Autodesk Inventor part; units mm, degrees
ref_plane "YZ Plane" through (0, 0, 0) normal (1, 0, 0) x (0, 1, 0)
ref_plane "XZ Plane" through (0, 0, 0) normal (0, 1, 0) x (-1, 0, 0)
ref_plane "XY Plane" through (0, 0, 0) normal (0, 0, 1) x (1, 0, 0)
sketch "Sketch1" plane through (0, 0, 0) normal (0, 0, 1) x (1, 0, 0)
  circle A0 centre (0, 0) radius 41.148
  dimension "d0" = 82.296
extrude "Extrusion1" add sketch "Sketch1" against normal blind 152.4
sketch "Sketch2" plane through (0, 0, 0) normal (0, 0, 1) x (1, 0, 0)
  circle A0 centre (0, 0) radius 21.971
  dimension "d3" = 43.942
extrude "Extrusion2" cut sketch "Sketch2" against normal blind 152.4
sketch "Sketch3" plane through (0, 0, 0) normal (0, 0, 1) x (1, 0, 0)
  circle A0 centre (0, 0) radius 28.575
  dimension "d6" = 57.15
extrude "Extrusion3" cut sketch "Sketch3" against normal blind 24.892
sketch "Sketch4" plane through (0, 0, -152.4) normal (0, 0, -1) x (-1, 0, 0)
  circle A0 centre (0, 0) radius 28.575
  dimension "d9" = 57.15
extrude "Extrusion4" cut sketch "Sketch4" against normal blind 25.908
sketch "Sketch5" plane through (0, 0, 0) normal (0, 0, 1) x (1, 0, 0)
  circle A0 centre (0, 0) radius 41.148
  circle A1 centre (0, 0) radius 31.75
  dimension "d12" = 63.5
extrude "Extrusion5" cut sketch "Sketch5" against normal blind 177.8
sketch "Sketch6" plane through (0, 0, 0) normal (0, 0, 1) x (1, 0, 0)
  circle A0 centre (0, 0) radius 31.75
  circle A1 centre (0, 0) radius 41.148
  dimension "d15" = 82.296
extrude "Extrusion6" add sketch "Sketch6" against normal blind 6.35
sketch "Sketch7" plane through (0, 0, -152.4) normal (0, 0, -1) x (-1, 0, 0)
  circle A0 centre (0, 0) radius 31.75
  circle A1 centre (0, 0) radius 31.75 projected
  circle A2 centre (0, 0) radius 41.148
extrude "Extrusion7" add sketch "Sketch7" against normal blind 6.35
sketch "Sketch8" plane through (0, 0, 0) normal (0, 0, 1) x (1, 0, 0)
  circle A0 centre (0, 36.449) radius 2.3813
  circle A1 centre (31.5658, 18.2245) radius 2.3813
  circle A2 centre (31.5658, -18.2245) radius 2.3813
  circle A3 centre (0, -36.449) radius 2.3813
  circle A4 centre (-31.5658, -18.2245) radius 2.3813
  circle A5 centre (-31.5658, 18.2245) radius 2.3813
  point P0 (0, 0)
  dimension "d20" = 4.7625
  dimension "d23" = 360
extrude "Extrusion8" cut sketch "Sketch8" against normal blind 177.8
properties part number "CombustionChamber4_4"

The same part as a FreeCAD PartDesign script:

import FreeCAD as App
import Part
import Sketcher

V = App.Vector
Q = App.Units.Quantity

doc = App.newDocument("Part")
body = doc.addObject("PartDesign::Body", "Body")

sketch1 = body.newObject("Sketcher::SketchObject", "Sketch")
sketch1.AttachmentSupport = (doc.getObject("XY_Plane"), [""])
sketch1.MapMode = "FlatFace"
sketch1.addGeometry(Part.Circle(V(0, 0, 0), V(0, 0, 1), 41), False)
sketch1.addConstraint([
    Sketcher.Constraint("Coincident", 0, 3, -1, 1),
    Sketcher.Constraint("Diameter", 0, Q("3.24 in")),
])
pad1 = body.newObject("PartDesign::Pad", "Pad")
pad1.Profile = sketch1
pad1.Length = Q("6 in")
pad1.Reversed = True

sketch2 = body.newObject("Sketcher::SketchObject", "Sketch001")
sketch2.AttachmentSupport = (doc.getObject("XY_Plane"), [""])
sketch2.MapMode = "FlatFace"
sketch2.addGeometry(Part.Circle(V(0, 0, 0), V(0, 0, 1), 22), False)
sketch2.addConstraint([
    Sketcher.Constraint("Coincident", 0, 3, -1, 1),
    Sketcher.Constraint("Diameter", 0, Q("1.73 in")),
])
pocket1 = body.newObject("PartDesign::Pocket", "Pocket")
pocket1.Profile = sketch2
pocket1.Length = Q("6 in")

sketch3 = body.newObject("Sketcher::SketchObject", "Sketch002")
sketch3.AttachmentSupport = (doc.getObject("XY_Plane"), [""])
sketch3.MapMode = "FlatFace"
sketch3.addGeometry(Part.Circle(V(0, 0, 0), V(0, 0, 1), 29), False)
sketch3.addConstraint([
    Sketcher.Constraint("Coincident", 0, 3, -1, 1),
    Sketcher.Constraint("Diameter", 0, Q("2.25 in")),
])
pocket2 = body.newObject("PartDesign::Pocket", "Pocket001")
pocket2.Profile = sketch3
pocket2.Length = Q("0.98 in")

sketch4 = body.newObject("Sketcher::SketchObject", "Sketch003")
sketch4.AttachmentSupport = (doc.getObject("XY_Plane"), [""])
sketch4.MapMode = "FlatFace"
sketch4.AttachmentOffset = App.Placement(V(0, 0, -6 * 25.4), App.Rotation())
sketch4.addGeometry(Part.Circle(V(0, 0, 0), V(0, 0, 1), 29), False)
sketch4.addConstraint([
    Sketcher.Constraint("Coincident", 0, 3, -1, 1),
    Sketcher.Constraint("Diameter", 0, Q("2.25 in")),
])
pocket3 = body.newObject("PartDesign::Pocket", "Pocket002")
pocket3.Profile = sketch4
pocket3.Length = Q("1.02 in")
pocket3.Reversed = True

sketch5 = body.newObject("Sketcher::SketchObject", "Sketch004")
sketch5.AttachmentSupport = (doc.getObject("XY_Plane"), [""])
sketch5.MapMode = "FlatFace"
sketch5.addGeometry([
    Part.Circle(V(0, 0, 0), V(0, 0, 1), 41),
    Part.Circle(V(0, 0, 0), V(0, 0, 1), 32),
], False)
sketch5.addConstraint([
    Sketcher.Constraint("Coincident", 0, 3, -1, 1),
    Sketcher.Constraint("Coincident", 1, 3, -1, 1),
    Sketcher.Constraint("Diameter", 1, Q("2.5 in")),
    Sketcher.Constraint("Diameter", 0, Q("3.24 in")),
])
pocket4 = body.newObject("PartDesign::Pocket", "Pocket003")
pocket4.Profile = sketch5
pocket4.Length = Q("7 in")

sketch6 = body.newObject("Sketcher::SketchObject", "Sketch005")
sketch6.AttachmentSupport = (doc.getObject("XY_Plane"), [""])
sketch6.MapMode = "FlatFace"
sketch6.addGeometry([
    Part.Circle(V(0, 0, 0), V(0, 0, 1), 41),
    Part.Circle(V(0, 0, 0), V(0, 0, 1), 32),
], False)
sketch6.addConstraint([
    Sketcher.Constraint("Coincident", 0, 3, -1, 1),
    Sketcher.Constraint("Coincident", 1, 3, -1, 1),
    Sketcher.Constraint("Diameter", 0, Q("3.24 in")),
    Sketcher.Constraint("Diameter", 1, Q("2.5 in")),
])
pad2 = body.newObject("PartDesign::Pad", "Pad001")
pad2.Profile = sketch6
pad2.Length = Q("0.25 in")
pad2.Reversed = True

sketch7 = body.newObject("Sketcher::SketchObject", "Sketch006")
sketch7.AttachmentSupport = (doc.getObject("XY_Plane"), [""])
sketch7.MapMode = "FlatFace"
sketch7.AttachmentOffset = App.Placement(V(0, 0, -6 * 25.4), App.Rotation())
sketch7.addGeometry([
    Part.Circle(V(0, 0, 0), V(0, 0, 1), 41),
    Part.Circle(V(0, 0, 0), V(0, 0, 1), 32),
], False)
sketch7.addConstraint([
    Sketcher.Constraint("Coincident", 0, 3, -1, 1),
    Sketcher.Constraint("Coincident", 1, 3, -1, 1),
    Sketcher.Constraint("Diameter", 1, Q("2.5 in")),
    Sketcher.Constraint("Diameter", 0, Q("3.24 in")),
])
pad3 = body.newObject("PartDesign::Pad", "Pad002")
pad3.Profile = sketch7
pad3.Length = Q("0.25 in")

sketch8 = body.newObject("Sketcher::SketchObject", "Sketch007")
sketch8.AttachmentSupport = (doc.getObject("XY_Plane"), [""])
sketch8.MapMode = "FlatFace"
sketch8.addGeometry([
    Part.Circle(V(0, 36.4, 0), V(0, 0, 1), 2.4),
    Part.Circle(V(31.6, 18.2, 0), V(0, 0, 1), 2.4),
    Part.Circle(V(31.6, -18.2, 0), V(0, 0, 1), 2.4),
    Part.Circle(V(0, -36.4, 0), V(0, 0, 1), 2.4),
    Part.Circle(V(-31.6, -18.2, 0), V(0, 0, 1), 2.4),
    Part.Circle(V(-31.6, 18.2, 0), V(0, 0, 1), 2.4),
], False)
sketch8.addConstraint([
    Sketcher.Constraint("Equal", 0, 1),
    Sketcher.Constraint("Equal", 1, 2),
    Sketcher.Constraint("Equal", 2, 3),
    Sketcher.Constraint("Equal", 3, 4),
    Sketcher.Constraint("Equal", 4, 5),
    Sketcher.Constraint("Symmetric", 0, 3, 3, 3, -1, 1),
    Sketcher.Constraint("Symmetric", 1, 3, 4, 3, -1, 1),
    Sketcher.Constraint("Symmetric", 2, 3, 5, 3, -1, 1),
    Sketcher.Constraint("Symmetric", 2, 3, 4, 3, -2),
    Sketcher.Constraint("PointOnObject", 0, 3, -2),
    Sketcher.Constraint("Diameter", 0, Q("0.1875 in")),
    Sketcher.Constraint("DistanceY", 3, 3, 0, 3, Q("2.87 in")),
    Sketcher.Constraint("DistanceY", 2, 3, 1, 3, Q("1.435 in")),
    Sketcher.Constraint("DistanceX", 4, 3, 2, 3, Q("2.4855 in")),
])
pocket5 = body.newObject("PartDesign::Pocket", "Pocket004")
pocket5.Profile = sketch8
pocket5.Length = Q("7 in")

doc.recompute()
